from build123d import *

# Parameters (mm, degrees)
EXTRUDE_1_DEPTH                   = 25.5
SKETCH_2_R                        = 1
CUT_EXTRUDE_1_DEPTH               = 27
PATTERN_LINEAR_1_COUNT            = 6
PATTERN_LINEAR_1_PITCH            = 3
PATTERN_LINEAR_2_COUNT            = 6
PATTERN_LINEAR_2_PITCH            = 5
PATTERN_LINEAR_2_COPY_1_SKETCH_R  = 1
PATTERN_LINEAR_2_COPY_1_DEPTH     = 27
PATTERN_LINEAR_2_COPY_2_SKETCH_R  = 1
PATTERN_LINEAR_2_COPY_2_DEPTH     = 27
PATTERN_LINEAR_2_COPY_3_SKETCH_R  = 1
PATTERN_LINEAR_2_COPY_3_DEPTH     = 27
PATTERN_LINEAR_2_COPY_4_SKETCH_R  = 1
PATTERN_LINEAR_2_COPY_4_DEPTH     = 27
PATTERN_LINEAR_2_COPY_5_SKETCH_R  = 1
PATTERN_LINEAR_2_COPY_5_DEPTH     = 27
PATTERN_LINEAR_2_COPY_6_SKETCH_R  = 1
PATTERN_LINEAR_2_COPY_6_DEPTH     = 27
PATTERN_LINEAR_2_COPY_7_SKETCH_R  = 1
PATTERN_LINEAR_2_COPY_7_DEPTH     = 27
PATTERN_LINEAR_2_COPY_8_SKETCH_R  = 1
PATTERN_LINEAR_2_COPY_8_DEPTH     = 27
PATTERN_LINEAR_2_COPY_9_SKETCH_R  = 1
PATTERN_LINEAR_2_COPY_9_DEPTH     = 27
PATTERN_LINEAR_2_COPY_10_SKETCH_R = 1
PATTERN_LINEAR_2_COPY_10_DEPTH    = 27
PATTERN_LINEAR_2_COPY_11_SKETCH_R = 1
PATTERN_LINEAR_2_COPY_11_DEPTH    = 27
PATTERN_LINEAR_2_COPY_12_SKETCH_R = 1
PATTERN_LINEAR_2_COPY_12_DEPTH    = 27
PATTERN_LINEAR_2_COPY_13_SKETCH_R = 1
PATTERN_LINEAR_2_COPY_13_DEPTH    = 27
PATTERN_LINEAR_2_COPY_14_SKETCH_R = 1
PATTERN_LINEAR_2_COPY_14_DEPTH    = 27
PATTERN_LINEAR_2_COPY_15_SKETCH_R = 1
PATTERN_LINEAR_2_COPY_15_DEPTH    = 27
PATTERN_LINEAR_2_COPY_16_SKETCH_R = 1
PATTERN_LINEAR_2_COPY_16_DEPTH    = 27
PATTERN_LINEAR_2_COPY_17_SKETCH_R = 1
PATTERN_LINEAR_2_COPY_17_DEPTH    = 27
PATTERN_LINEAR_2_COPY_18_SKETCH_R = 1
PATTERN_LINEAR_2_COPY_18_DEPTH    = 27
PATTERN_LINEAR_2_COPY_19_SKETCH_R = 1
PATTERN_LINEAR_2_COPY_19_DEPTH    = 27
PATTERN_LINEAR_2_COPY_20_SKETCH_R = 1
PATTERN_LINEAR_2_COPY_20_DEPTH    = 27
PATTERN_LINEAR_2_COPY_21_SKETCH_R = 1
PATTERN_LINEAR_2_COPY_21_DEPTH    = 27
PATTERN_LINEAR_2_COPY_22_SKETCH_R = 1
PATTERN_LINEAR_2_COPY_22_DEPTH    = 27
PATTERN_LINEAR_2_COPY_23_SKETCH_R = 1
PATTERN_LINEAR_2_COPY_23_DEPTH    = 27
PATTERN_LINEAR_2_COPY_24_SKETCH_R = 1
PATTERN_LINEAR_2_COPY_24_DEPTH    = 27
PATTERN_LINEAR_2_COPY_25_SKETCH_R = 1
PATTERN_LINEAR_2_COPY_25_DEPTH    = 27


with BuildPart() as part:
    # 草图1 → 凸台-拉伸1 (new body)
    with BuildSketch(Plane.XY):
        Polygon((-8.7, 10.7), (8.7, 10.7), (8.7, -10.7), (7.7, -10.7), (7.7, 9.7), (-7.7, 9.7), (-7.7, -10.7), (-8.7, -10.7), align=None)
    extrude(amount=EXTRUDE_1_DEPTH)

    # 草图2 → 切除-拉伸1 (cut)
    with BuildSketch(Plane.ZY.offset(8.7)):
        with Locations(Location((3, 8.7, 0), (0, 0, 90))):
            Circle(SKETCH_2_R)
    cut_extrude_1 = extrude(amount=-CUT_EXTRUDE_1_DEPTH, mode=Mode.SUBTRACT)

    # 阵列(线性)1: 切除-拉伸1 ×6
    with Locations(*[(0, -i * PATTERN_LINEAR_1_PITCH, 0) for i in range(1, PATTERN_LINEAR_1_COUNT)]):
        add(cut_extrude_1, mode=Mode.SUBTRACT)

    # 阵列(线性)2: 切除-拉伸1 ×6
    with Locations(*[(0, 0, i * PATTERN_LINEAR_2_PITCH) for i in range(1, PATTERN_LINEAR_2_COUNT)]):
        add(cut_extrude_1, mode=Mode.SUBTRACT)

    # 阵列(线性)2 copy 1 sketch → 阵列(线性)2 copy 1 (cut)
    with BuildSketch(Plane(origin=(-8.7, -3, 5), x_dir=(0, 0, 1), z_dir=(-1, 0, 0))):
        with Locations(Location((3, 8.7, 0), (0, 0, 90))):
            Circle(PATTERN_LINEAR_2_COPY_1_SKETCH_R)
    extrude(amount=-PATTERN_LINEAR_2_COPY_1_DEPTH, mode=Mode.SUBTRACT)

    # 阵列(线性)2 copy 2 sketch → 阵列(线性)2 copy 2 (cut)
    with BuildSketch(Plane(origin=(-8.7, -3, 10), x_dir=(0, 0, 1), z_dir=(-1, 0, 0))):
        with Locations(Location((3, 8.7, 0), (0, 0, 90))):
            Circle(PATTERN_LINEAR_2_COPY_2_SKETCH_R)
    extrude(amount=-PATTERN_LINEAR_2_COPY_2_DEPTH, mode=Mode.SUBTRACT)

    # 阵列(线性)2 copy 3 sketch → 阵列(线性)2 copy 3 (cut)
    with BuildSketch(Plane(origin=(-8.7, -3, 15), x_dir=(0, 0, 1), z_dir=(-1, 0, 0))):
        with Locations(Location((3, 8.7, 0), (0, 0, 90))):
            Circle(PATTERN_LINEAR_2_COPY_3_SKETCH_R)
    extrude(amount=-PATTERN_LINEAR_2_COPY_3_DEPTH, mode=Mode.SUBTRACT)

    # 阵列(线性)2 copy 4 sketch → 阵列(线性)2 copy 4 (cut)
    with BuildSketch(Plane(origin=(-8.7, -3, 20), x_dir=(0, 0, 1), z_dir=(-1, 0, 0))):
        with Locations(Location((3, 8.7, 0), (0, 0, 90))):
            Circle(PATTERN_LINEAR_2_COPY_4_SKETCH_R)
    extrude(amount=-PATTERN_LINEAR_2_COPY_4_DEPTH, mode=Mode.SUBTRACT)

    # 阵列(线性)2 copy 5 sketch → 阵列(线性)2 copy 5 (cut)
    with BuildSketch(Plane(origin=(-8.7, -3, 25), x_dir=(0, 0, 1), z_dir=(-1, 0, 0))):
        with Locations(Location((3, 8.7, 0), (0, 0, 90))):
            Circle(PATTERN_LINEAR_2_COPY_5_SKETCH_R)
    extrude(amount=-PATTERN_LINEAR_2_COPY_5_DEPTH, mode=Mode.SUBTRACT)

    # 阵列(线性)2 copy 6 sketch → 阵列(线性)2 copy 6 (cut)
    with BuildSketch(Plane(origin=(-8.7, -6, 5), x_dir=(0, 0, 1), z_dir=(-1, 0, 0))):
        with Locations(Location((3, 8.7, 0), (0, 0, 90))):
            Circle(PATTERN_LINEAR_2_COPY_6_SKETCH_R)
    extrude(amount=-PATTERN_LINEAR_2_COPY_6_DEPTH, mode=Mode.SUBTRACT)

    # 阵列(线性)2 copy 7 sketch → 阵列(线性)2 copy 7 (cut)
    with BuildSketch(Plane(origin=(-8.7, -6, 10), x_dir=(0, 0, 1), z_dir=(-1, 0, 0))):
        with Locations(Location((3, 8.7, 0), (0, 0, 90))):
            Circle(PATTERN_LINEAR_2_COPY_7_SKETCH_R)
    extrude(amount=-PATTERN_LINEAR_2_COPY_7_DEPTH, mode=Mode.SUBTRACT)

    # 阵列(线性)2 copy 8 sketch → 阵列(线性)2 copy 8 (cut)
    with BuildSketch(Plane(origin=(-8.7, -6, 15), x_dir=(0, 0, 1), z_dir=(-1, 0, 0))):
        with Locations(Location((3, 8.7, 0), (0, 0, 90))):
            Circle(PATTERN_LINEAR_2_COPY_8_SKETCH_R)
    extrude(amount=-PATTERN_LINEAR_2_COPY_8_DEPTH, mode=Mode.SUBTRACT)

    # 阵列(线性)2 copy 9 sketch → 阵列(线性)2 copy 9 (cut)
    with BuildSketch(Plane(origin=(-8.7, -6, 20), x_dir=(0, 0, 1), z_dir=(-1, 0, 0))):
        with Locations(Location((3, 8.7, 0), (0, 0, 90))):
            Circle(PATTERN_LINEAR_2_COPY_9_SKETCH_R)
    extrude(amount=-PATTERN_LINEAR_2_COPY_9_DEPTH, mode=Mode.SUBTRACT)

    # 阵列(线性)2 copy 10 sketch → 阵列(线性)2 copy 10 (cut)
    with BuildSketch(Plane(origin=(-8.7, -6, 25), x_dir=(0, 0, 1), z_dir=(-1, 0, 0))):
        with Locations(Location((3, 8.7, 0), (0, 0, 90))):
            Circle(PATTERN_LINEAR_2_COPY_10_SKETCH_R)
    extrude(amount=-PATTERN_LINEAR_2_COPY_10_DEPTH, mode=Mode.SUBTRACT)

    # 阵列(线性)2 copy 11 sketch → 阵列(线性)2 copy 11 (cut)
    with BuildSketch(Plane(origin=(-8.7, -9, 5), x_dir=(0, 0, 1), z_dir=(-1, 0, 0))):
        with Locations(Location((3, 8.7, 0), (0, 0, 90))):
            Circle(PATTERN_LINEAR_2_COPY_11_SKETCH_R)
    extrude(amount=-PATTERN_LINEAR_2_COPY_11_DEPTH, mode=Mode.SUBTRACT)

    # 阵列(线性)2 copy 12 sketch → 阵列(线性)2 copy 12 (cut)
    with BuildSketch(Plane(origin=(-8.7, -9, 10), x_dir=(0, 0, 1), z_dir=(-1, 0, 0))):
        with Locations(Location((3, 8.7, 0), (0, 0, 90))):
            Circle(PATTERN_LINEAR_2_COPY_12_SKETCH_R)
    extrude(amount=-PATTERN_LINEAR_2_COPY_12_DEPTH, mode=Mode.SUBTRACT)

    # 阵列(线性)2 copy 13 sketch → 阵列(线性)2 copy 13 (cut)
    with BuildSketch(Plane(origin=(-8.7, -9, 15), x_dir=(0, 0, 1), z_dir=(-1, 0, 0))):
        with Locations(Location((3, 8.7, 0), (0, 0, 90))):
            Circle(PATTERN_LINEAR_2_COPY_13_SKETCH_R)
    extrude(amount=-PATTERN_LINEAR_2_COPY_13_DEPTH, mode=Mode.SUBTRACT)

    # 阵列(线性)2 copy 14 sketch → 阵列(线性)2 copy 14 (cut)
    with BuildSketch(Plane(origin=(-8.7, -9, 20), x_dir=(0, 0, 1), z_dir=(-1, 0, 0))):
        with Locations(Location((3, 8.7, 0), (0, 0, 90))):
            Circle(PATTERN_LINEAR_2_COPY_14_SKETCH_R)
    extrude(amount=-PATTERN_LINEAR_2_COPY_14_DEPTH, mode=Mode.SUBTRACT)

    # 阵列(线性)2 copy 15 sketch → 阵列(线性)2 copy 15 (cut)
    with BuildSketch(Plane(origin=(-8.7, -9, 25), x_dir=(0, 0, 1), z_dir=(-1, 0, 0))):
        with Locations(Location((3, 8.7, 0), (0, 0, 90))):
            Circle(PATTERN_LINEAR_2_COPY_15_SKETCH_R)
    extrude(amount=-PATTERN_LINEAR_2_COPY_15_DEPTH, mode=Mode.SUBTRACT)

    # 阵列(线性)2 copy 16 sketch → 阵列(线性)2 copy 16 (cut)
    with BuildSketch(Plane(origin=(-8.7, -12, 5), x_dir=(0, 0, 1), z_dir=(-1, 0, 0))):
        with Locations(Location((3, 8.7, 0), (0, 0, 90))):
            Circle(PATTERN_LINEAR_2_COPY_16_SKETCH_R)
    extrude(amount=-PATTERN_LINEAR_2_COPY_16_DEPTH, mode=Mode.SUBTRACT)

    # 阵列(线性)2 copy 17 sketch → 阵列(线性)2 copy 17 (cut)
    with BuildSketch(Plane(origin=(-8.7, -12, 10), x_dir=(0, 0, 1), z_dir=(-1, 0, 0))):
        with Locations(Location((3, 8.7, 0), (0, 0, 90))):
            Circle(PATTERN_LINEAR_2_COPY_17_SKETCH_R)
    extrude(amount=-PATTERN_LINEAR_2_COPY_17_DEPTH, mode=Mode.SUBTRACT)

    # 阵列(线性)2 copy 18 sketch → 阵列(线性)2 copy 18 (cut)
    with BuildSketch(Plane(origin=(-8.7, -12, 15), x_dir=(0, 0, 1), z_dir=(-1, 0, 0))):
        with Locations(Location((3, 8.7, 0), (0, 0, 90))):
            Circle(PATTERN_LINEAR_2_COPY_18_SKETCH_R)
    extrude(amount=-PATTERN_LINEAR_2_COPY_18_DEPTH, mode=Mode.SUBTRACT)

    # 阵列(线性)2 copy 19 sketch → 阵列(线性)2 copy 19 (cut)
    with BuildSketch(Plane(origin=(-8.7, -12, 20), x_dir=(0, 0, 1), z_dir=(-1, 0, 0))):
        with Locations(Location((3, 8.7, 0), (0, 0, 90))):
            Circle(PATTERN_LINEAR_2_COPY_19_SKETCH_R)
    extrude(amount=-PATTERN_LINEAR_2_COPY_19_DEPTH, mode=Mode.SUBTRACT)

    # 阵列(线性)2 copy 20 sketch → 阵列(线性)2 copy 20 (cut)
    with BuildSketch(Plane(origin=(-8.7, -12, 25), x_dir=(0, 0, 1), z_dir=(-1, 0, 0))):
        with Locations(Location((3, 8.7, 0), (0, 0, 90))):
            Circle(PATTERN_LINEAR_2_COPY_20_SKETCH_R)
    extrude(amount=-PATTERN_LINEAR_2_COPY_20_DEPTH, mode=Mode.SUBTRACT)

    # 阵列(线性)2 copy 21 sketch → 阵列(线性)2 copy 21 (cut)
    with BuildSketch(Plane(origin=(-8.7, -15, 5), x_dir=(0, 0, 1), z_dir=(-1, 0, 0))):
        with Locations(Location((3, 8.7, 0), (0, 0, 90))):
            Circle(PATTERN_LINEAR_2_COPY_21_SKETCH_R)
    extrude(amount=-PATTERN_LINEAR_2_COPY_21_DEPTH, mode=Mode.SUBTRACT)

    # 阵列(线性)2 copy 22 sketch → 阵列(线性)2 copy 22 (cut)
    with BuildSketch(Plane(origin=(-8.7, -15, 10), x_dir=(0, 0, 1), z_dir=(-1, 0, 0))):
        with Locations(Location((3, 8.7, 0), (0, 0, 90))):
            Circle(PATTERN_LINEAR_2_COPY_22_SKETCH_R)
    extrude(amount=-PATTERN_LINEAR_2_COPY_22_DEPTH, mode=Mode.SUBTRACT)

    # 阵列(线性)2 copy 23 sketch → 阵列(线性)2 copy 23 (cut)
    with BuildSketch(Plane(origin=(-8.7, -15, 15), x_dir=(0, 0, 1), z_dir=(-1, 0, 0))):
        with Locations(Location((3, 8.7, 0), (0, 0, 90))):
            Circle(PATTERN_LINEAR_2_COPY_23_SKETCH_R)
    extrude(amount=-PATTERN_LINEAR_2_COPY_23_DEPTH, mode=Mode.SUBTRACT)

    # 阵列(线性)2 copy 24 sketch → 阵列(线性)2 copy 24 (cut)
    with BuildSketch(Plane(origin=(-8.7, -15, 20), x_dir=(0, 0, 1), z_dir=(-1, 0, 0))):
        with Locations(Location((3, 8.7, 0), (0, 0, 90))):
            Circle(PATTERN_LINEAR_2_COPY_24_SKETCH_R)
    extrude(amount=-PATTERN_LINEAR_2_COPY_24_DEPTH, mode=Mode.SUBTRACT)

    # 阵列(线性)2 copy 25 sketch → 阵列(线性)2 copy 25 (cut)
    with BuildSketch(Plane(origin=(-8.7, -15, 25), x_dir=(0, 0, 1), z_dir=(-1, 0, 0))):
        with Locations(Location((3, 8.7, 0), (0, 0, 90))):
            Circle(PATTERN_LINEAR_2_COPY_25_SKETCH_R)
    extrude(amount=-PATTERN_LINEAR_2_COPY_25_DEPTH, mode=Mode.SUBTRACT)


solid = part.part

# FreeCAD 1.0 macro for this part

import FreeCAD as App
import Part
import Sketcher
Q = App.Units.Quantity

doc = App.newDocument("Part")
body = doc.addObject("PartDesign::Body", "Body")

# Sketch on XY plane
sketch1 = doc.addObject("Sketcher::SketchObject", "Sketch")
body.addObject(sketch1)
sketch1.AttachmentSupport = (doc.XY_Plane, [""])
sketch1.MapMode = "FlatFace"
sketch1.addGeometry([
    Part.LineSegment(App.Vector(8.7, 10.7, 0), App.Vector(-8.7, 10.7, 0)),  # 0
    Part.LineSegment(App.Vector(-8.7, 10.7, 0), App.Vector(-8.7, -10.7, 0)),  # 1
    Part.LineSegment(App.Vector(-8.7, -10.7, 0), App.Vector(-7.7, -10.7, 0)),  # 2
    Part.LineSegment(App.Vector(-7.7, -10.7, 0), App.Vector(-7.7, 9.7, 0)),  # 3
    Part.LineSegment(App.Vector(-7.7, 9.7, 0), App.Vector(7.7, 9.7, 0)),  # 4
    Part.LineSegment(App.Vector(7.7, 9.7, 0), App.Vector(7.7, -10.7, 0)),  # 5
    Part.LineSegment(App.Vector(7.7, -10.7, 0), App.Vector(8.7, -10.7, 0)),  # 6
    Part.LineSegment(App.Vector(8.7, -10.7, 0), App.Vector(8.7, 10.7, 0)),  # 7
], False)
sketch1.addConstraint([
    Sketcher.Constraint("Coincident", 0, 2, 1, 1),
    Sketcher.Constraint("Coincident", 1, 2, 2, 1),
    Sketcher.Constraint("Coincident", 2, 2, 3, 1),
    Sketcher.Constraint("Coincident", 3, 2, 4, 1),
    Sketcher.Constraint("Coincident", 4, 2, 5, 1),
    Sketcher.Constraint("Coincident", 5, 2, 6, 1),
    Sketcher.Constraint("Coincident", 6, 2, 7, 1),
    Sketcher.Constraint("Coincident", 7, 2, 0, 1),
    Sketcher.Constraint("Horizontal", 0),
    Sketcher.Constraint("Vertical", 1),
    Sketcher.Constraint("Horizontal", 2),
    Sketcher.Constraint("Vertical", 3),
    Sketcher.Constraint("Horizontal", 4),
    Sketcher.Constraint("Vertical", 5),
    Sketcher.Constraint("Horizontal", 6),
    Sketcher.Constraint("Vertical", 7),
    Sketcher.Constraint("Symmetric", 0, 2, 6, 2, -1, 1),
    Sketcher.Constraint("Symmetric", 2, 2, 5, 2, -2),
    Sketcher.Constraint("DistanceX", 2, 1, 2, 2, Q("1 mm")),
    Sketcher.Constraint("DistanceX", 0, 2, 0, 1, Q("17.4 mm")),
    Sketcher.Constraint("DistanceY", 1, 2, 1, 1, Q("21.4 mm")),
    Sketcher.Constraint("DistanceY", 3, 1, 3, 2, Q("20.4 mm")),
])
pad1 = doc.addObject("PartDesign::Pad", "Pad")
body.addObject(pad1)
pad1.Profile = sketch1
pad1.Length = 25.5

# Sketch on YZ plane
sketch2 = doc.addObject("Sketcher::SketchObject", "Sketch001")
body.addObject(sketch2)
sketch2.AttachmentSupport = (doc.YZ_Plane, [""])
sketch2.MapMode = "FlatFace"
sketch2.AttachmentOffset = App.Placement(App.Vector(0, 0, -8.7), App.Rotation())
sketch2.addGeometry(Part.Circle(App.Vector(8.7, 3, 0), App.Vector(0, 0, 1), 1), False)
sketch2.addConstraint([
    Sketcher.Constraint("Diameter", 0, Q("2 mm")),
    Sketcher.Constraint("DistanceY", -1, 1, 0, 3, Q("3 mm")),
    Sketcher.Constraint("DistanceX", -1, 1, 0, 3, Q("8.7 mm")),
])
pocket1 = doc.addObject("PartDesign::Pocket", "Pocket")
body.addObject(pocket1)
pocket1.Profile = sketch2
pocket1.Length = 27
pocket1.Reversed = True
doc.recompute()

linearpattern = doc.addObject("PartDesign::LinearPattern", "LinearPattern")
body.addObject(linearpattern)
linearpattern.Originals = [pocket1]
linearpattern.Direction = (doc.Y_Axis, [""])
linearpattern.Mode = "offset"
linearpattern.Offset = 3
linearpattern.Occurrences = 6
linearpattern.Reversed = True
body.Tip = linearpattern
doc.recompute()

linearpattern2 = doc.addObject("PartDesign::LinearPattern", "LinearPattern001")
body.addObject(linearpattern2)
linearpattern2.Originals = [pocket1]
linearpattern2.Direction = (doc.Z_Axis, [""])
linearpattern2.Mode = "offset"
linearpattern2.Offset = 5
linearpattern2.Occurrences = 6
body.Tip = linearpattern2

# Sketch on YZ plane
sketch3 = doc.addObject("Sketcher::SketchObject", "Sketch002")
body.addObject(sketch3)
sketch3.AttachmentSupport = (doc.YZ_Plane, [""])
sketch3.MapMode = "FlatFace"
sketch3.AttachmentOffset = App.Placement(App.Vector(0, 0, -8.7), App.Rotation())
sketch3.addGeometry(Part.Circle(App.Vector(5.7, 8, 0), App.Vector(0, 0, 1), 1), False)
sketch3.addConstraint([
    Sketcher.Constraint("Diameter", 0, Q("2 mm")),
    Sketcher.Constraint("DistanceY", -1, 1, 0, 3, Q("8 mm")),
    Sketcher.Constraint("DistanceX", -1, 1, 0, 3, Q("5.7 mm")),
])
pocket2 = doc.addObject("PartDesign::Pocket", "Pocket001")
body.addObject(pocket2)
pocket2.Profile = sketch3
pocket2.Length = 27
pocket2.Reversed = True

# Sketch on YZ plane
sketch4 = doc.addObject("Sketcher::SketchObject", "Sketch003")
body.addObject(sketch4)
sketch4.AttachmentSupport = (doc.YZ_Plane, [""])
sketch4.MapMode = "FlatFace"
sketch4.AttachmentOffset = App.Placement(App.Vector(0, 0, -8.7), App.Rotation())
sketch4.addGeometry(Part.Circle(App.Vector(5.7, 13, 0), App.Vector(0, 0, 1), 1), False)
sketch4.addConstraint([
    Sketcher.Constraint("Diameter", 0, Q("2 mm")),
    Sketcher.Constraint("DistanceY", -1, 1, 0, 3, Q("13 mm")),
    Sketcher.Constraint("DistanceX", -1, 1, 0, 3, Q("5.7 mm")),
])
pocket3 = doc.addObject("PartDesign::Pocket", "Pocket002")
body.addObject(pocket3)
pocket3.Profile = sketch4
pocket3.Length = 27
pocket3.Reversed = True

# Sketch on YZ plane
sketch5 = doc.addObject("Sketcher::SketchObject", "Sketch004")
body.addObject(sketch5)
sketch5.AttachmentSupport = (doc.YZ_Plane, [""])
sketch5.MapMode = "FlatFace"
sketch5.AttachmentOffset = App.Placement(App.Vector(0, 0, -8.7), App.Rotation())
sketch5.addGeometry(Part.Circle(App.Vector(5.7, 18, 0), App.Vector(0, 0, 1), 1), False)
sketch5.addConstraint([
    Sketcher.Constraint("Diameter", 0, Q("2 mm")),
    Sketcher.Constraint("DistanceY", -1, 1, 0, 3, Q("18 mm")),
    Sketcher.Constraint("DistanceX", -1, 1, 0, 3, Q("5.7 mm")),
])
pocket4 = doc.addObject("PartDesign::Pocket", "Pocket003")
body.addObject(pocket4)
pocket4.Profile = sketch5
pocket4.Length = 27
pocket4.Reversed = True

# Sketch on YZ plane
sketch6 = doc.addObject("Sketcher::SketchObject", "Sketch005")
body.addObject(sketch6)
sketch6.AttachmentSupport = (doc.YZ_Plane, [""])
sketch6.MapMode = "FlatFace"
sketch6.AttachmentOffset = App.Placement(App.Vector(0, 0, -8.7), App.Rotation())
sketch6.addGeometry(Part.Circle(App.Vector(5.7, 23, 0), App.Vector(0, 0, 1), 1), False)
sketch6.addConstraint([
    Sketcher.Constraint("Diameter", 0, Q("2 mm")),
    Sketcher.Constraint("DistanceY", -1, 1, 0, 3, Q("23 mm")),
    Sketcher.Constraint("DistanceX", -1, 1, 0, 3, Q("5.7 mm")),
])
pocket5 = doc.addObject("PartDesign::Pocket", "Pocket004")
body.addObject(pocket5)
pocket5.Profile = sketch6
pocket5.Length = 27
pocket5.Reversed = True

# Sketch on YZ plane
sketch7 = doc.addObject("Sketcher::SketchObject", "Sketch006")
body.addObject(sketch7)
sketch7.AttachmentSupport = (doc.YZ_Plane, [""])
sketch7.MapMode = "FlatFace"
sketch7.AttachmentOffset = App.Placement(App.Vector(0, 0, -8.7), App.Rotation())
sketch7.addGeometry(Part.Circle(App.Vector(5.7, 28, 0), App.Vector(0, 0, 1), 1), False)
sketch7.addConstraint([
    Sketcher.Constraint("Diameter", 0, Q("2 mm")),
    Sketcher.Constraint("DistanceY", -1, 1, 0, 3, Q("28 mm")),
    Sketcher.Constraint("DistanceX", -1, 1, 0, 3, Q("5.7 mm")),
])
pocket6 = doc.addObject("PartDesign::Pocket", "Pocket005")
body.addObject(pocket6)
pocket6.Profile = sketch7
pocket6.Length = 27
pocket6.Reversed = True

# Sketch on YZ plane
sketch8 = doc.addObject("Sketcher::SketchObject", "Sketch007")
body.addObject(sketch8)
sketch8.AttachmentSupport = (doc.YZ_Plane, [""])
sketch8.MapMode = "FlatFace"
sketch8.AttachmentOffset = App.Placement(App.Vector(0, 0, -8.7), App.Rotation())
sketch8.addGeometry(Part.Circle(App.Vector(2.7, 8, 0), App.Vector(0, 0, 1), 1), False)
sketch8.addConstraint([
    Sketcher.Constraint("Diameter", 0, Q("2 mm")),
    Sketcher.Constraint("DistanceY", -1, 1, 0, 3, Q("8 mm")),
    Sketcher.Constraint("DistanceX", -1, 1, 0, 3, Q("2.7 mm")),
])
pocket7 = doc.addObject("PartDesign::Pocket", "Pocket006")
body.addObject(pocket7)
pocket7.Profile = sketch8
pocket7.Length = 27
pocket7.Reversed = True

# Sketch on YZ plane
sketch9 = doc.addObject("Sketcher::SketchObject", "Sketch008")
body.addObject(sketch9)
sketch9.AttachmentSupport = (doc.YZ_Plane, [""])
sketch9.MapMode = "FlatFace"
sketch9.AttachmentOffset = App.Placement(App.Vector(0, 0, -8.7), App.Rotation())
sketch9.addGeometry(Part.Circle(App.Vector(2.7, 13, 0), App.Vector(0, 0, 1), 1), False)
sketch9.addConstraint([
    Sketcher.Constraint("Diameter", 0, Q("2 mm")),
    Sketcher.Constraint("DistanceY", -1, 1, 0, 3, Q("13 mm")),
    Sketcher.Constraint("DistanceX", -1, 1, 0, 3, Q("2.7 mm")),
])
pocket8 = doc.addObject("PartDesign::Pocket", "Pocket007")
body.addObject(pocket8)
pocket8.Profile = sketch9
pocket8.Length = 27
pocket8.Reversed = True

# Sketch on YZ plane
sketch10 = doc.addObject("Sketcher::SketchObject", "Sketch009")
body.addObject(sketch10)
sketch10.AttachmentSupport = (doc.YZ_Plane, [""])
sketch10.MapMode = "FlatFace"
sketch10.AttachmentOffset = App.Placement(App.Vector(0, 0, -8.7), App.Rotation())
sketch10.addGeometry(Part.Circle(App.Vector(2.7, 18, 0), App.Vector(0, 0, 1), 1), False)
sketch10.addConstraint([
    Sketcher.Constraint("Diameter", 0, Q("2 mm")),
    Sketcher.Constraint("DistanceY", -1, 1, 0, 3, Q("18 mm")),
    Sketcher.Constraint("DistanceX", -1, 1, 0, 3, Q("2.7 mm")),
])
pocket9 = doc.addObject("PartDesign::Pocket", "Pocket008")
body.addObject(pocket9)
pocket9.Profile = sketch10
pocket9.Length = 27
pocket9.Reversed = True

# Sketch on YZ plane
sketch11 = doc.addObject("Sketcher::SketchObject", "Sketch010")
body.addObject(sketch11)
sketch11.AttachmentSupport = (doc.YZ_Plane, [""])
sketch11.MapMode = "FlatFace"
sketch11.AttachmentOffset = App.Placement(App.Vector(0, 0, -8.7), App.Rotation())
sketch11.addGeometry(Part.Circle(App.Vector(2.7, 23, 0), App.Vector(0, 0, 1), 1), False)
sketch11.addConstraint([
    Sketcher.Constraint("Diameter", 0, Q("2 mm")),
    Sketcher.Constraint("DistanceY", -1, 1, 0, 3, Q("23 mm")),
    Sketcher.Constraint("DistanceX", -1, 1, 0, 3, Q("2.7 mm")),
])
pocket10 = doc.addObject("PartDesign::Pocket", "Pocket009")
body.addObject(pocket10)
pocket10.Profile = sketch11
pocket10.Length = 27
pocket10.Reversed = True

# Sketch on YZ plane
sketch12 = doc.addObject("Sketcher::SketchObject", "Sketch011")
body.addObject(sketch12)
sketch12.AttachmentSupport = (doc.YZ_Plane, [""])
sketch12.MapMode = "FlatFace"
sketch12.AttachmentOffset = App.Placement(App.Vector(0, 0, -8.7), App.Rotation())
sketch12.addGeometry(Part.Circle(App.Vector(2.7, 28, 0), App.Vector(0, 0, 1), 1), False)
sketch12.addConstraint([
    Sketcher.Constraint("Diameter", 0, Q("2 mm")),
    Sketcher.Constraint("DistanceY", -1, 1, 0, 3, Q("28 mm")),
    Sketcher.Constraint("DistanceX", -1, 1, 0, 3, Q("2.7 mm")),
])
pocket11 = doc.addObject("PartDesign::Pocket", "Pocket010")
body.addObject(pocket11)
pocket11.Profile = sketch12
pocket11.Length = 27
pocket11.Reversed = True

# Sketch on YZ plane
sketch13 = doc.addObject("Sketcher::SketchObject", "Sketch012")
body.addObject(sketch13)
sketch13.AttachmentSupport = (doc.YZ_Plane, [""])
sketch13.MapMode = "FlatFace"
sketch13.AttachmentOffset = App.Placement(App.Vector(0, 0, -8.7), App.Rotation())
sketch13.addGeometry(Part.Circle(App.Vector(-0.3, 8, 0), App.Vector(0, 0, 1), 1), False)
sketch13.addConstraint([
    Sketcher.Constraint("Diameter", 0, Q("2 mm")),
    Sketcher.Constraint("DistanceY", -1, 1, 0, 3, Q("8 mm")),
    Sketcher.Constraint("DistanceX", 0, 3, -1, 1, Q("0.3 mm")),
])
pocket12 = doc.addObject("PartDesign::Pocket", "Pocket011")
body.addObject(pocket12)
pocket12.Profile = sketch13
pocket12.Length = 27
pocket12.Reversed = True

# Sketch on YZ plane
sketch14 = doc.addObject("Sketcher::SketchObject", "Sketch013")
body.addObject(sketch14)
sketch14.AttachmentSupport = (doc.YZ_Plane, [""])
sketch14.MapMode = "FlatFace"
sketch14.AttachmentOffset = App.Placement(App.Vector(0, 0, -8.7), App.Rotation())
sketch14.addGeometry(Part.Circle(App.Vector(-0.3, 13, 0), App.Vector(0, 0, 1), 1), False)
sketch14.addConstraint([
    Sketcher.Constraint("Diameter", 0, Q("2 mm")),
    Sketcher.Constraint("DistanceY", -1, 1, 0, 3, Q("13 mm")),
    Sketcher.Constraint("DistanceX", 0, 3, -1, 1, Q("0.3 mm")),
])
pocket13 = doc.addObject("PartDesign::Pocket", "Pocket012")
body.addObject(pocket13)
pocket13.Profile = sketch14
pocket13.Length = 27
pocket13.Reversed = True

# Sketch on YZ plane
sketch15 = doc.addObject("Sketcher::SketchObject", "Sketch014")
body.addObject(sketch15)
sketch15.AttachmentSupport = (doc.YZ_Plane, [""])
sketch15.MapMode = "FlatFace"
sketch15.AttachmentOffset = App.Placement(App.Vector(0, 0, -8.7), App.Rotation())
sketch15.addGeometry(Part.Circle(App.Vector(-0.3, 18, 0), App.Vector(0, 0, 1), 1), False)
sketch15.addConstraint([
    Sketcher.Constraint("Diameter", 0, Q("2 mm")),
    Sketcher.Constraint("DistanceY", -1, 1, 0, 3, Q("18 mm")),
    Sketcher.Constraint("DistanceX", 0, 3, -1, 1, Q("0.3 mm")),
])
pocket14 = doc.addObject("PartDesign::Pocket", "Pocket013")
body.addObject(pocket14)
pocket14.Profile = sketch15
pocket14.Length = 27
pocket14.Reversed = True

# Sketch on YZ plane
sketch16 = doc.addObject("Sketcher::SketchObject", "Sketch015")
body.addObject(sketch16)
sketch16.AttachmentSupport = (doc.YZ_Plane, [""])
sketch16.MapMode = "FlatFace"
sketch16.AttachmentOffset = App.Placement(App.Vector(0, 0, -8.7), App.Rotation())
sketch16.addGeometry(Part.Circle(App.Vector(-0.3, 23, 0), App.Vector(0, 0, 1), 1), False)
sketch16.addConstraint([
    Sketcher.Constraint("Diameter", 0, Q("2 mm")),
    Sketcher.Constraint("DistanceY", -1, 1, 0, 3, Q("23 mm")),
    Sketcher.Constraint("DistanceX", 0, 3, -1, 1, Q("0.3 mm")),
])
pocket15 = doc.addObject("PartDesign::Pocket", "Pocket014")
body.addObject(pocket15)
pocket15.Profile = sketch16
pocket15.Length = 27
pocket15.Reversed = True

# Sketch on YZ plane
sketch17 = doc.addObject("Sketcher::SketchObject", "Sketch016")
body.addObject(sketch17)
sketch17.AttachmentSupport = (doc.YZ_Plane, [""])
sketch17.MapMode = "FlatFace"
sketch17.AttachmentOffset = App.Placement(App.Vector(0, 0, -8.7), App.Rotation())
sketch17.addGeometry(Part.Circle(App.Vector(-0.3, 28, 0), App.Vector(0, 0, 1), 1), False)
sketch17.addConstraint([
    Sketcher.Constraint("Diameter", 0, Q("2 mm")),
    Sketcher.Constraint("DistanceY", -1, 1, 0, 3, Q("28 mm")),
    Sketcher.Constraint("DistanceX", 0, 3, -1, 1, Q("0.3 mm")),
])
pocket16 = doc.addObject("PartDesign::Pocket", "Pocket015")
body.addObject(pocket16)
pocket16.Profile = sketch17
pocket16.Length = 27
pocket16.Reversed = True

# Sketch on YZ plane
sketch18 = doc.addObject("Sketcher::SketchObject", "Sketch017")
body.addObject(sketch18)
sketch18.AttachmentSupport = (doc.YZ_Plane, [""])
sketch18.MapMode = "FlatFace"
sketch18.AttachmentOffset = App.Placement(App.Vector(0, 0, -8.7), App.Rotation())
sketch18.addGeometry(Part.Circle(App.Vector(-3.3, 8, 0), App.Vector(0, 0, 1), 1), False)
sketch18.addConstraint([
    Sketcher.Constraint("Diameter", 0, Q("2 mm")),
    Sketcher.Constraint("DistanceY", -1, 1, 0, 3, Q("8 mm")),
    Sketcher.Constraint("DistanceX", 0, 3, -1, 1, Q("3.3 mm")),
])
pocket17 = doc.addObject("PartDesign::Pocket", "Pocket016")
body.addObject(pocket17)
pocket17.Profile = sketch18
pocket17.Length = 27
pocket17.Reversed = True

# Sketch on YZ plane
sketch19 = doc.addObject("Sketcher::SketchObject", "Sketch018")
body.addObject(sketch19)
sketch19.AttachmentSupport = (doc.YZ_Plane, [""])
sketch19.MapMode = "FlatFace"
sketch19.AttachmentOffset = App.Placement(App.Vector(0, 0, -8.7), App.Rotation())
sketch19.addGeometry(Part.Circle(App.Vector(-3.3, 13, 0), App.Vector(0, 0, 1), 1), False)
sketch19.addConstraint([
    Sketcher.Constraint("Diameter", 0, Q("2 mm")),
    Sketcher.Constraint("DistanceY", -1, 1, 0, 3, Q("13 mm")),
    Sketcher.Constraint("DistanceX", 0, 3, -1, 1, Q("3.3 mm")),
])
pocket18 = doc.addObject("PartDesign::Pocket", "Pocket017")
body.addObject(pocket18)
pocket18.Profile = sketch19
pocket18.Length = 27
pocket18.Reversed = True

# Sketch on YZ plane
sketch20 = doc.addObject("Sketcher::SketchObject", "Sketch019")
body.addObject(sketch20)
sketch20.AttachmentSupport = (doc.YZ_Plane, [""])
sketch20.MapMode = "FlatFace"
sketch20.AttachmentOffset = App.Placement(App.Vector(0, 0, -8.7), App.Rotation())
sketch20.addGeometry(Part.Circle(App.Vector(-3.3, 18, 0), App.Vector(0, 0, 1), 1), False)
sketch20.addConstraint([
    Sketcher.Constraint("Diameter", 0, Q("2 mm")),
    Sketcher.Constraint("DistanceY", -1, 1, 0, 3, Q("18 mm")),
    Sketcher.Constraint("DistanceX", 0, 3, -1, 1, Q("3.3 mm")),
])
pocket19 = doc.addObject("PartDesign::Pocket", "Pocket018")
body.addObject(pocket19)
pocket19.Profile = sketch20
pocket19.Length = 27
pocket19.Reversed = True

# Sketch on YZ plane
sketch21 = doc.addObject("Sketcher::SketchObject", "Sketch020")
body.addObject(sketch21)
sketch21.AttachmentSupport = (doc.YZ_Plane, [""])
sketch21.MapMode = "FlatFace"
sketch21.AttachmentOffset = App.Placement(App.Vector(0, 0, -8.7), App.Rotation())
sketch21.addGeometry(Part.Circle(App.Vector(-3.3, 23, 0), App.Vector(0, 0, 1), 1), False)
sketch21.addConstraint([
    Sketcher.Constraint("Diameter", 0, Q("2 mm")),
    Sketcher.Constraint("DistanceY", -1, 1, 0, 3, Q("23 mm")),
    Sketcher.Constraint("DistanceX", 0, 3, -1, 1, Q("3.3 mm")),
])
pocket20 = doc.addObject("PartDesign::Pocket", "Pocket019")
body.addObject(pocket20)
pocket20.Profile = sketch21
pocket20.Length = 27
pocket20.Reversed = True

# Sketch on YZ plane
sketch22 = doc.addObject("Sketcher::SketchObject", "Sketch021")
body.addObject(sketch22)
sketch22.AttachmentSupport = (doc.YZ_Plane, [""])
sketch22.MapMode = "FlatFace"
sketch22.AttachmentOffset = App.Placement(App.Vector(0, 0, -8.7), App.Rotation())
sketch22.addGeometry(Part.Circle(App.Vector(-3.3, 28, 0), App.Vector(0, 0, 1), 1), False)
sketch22.addConstraint([
    Sketcher.Constraint("Diameter", 0, Q("2 mm")),
    Sketcher.Constraint("DistanceY", -1, 1, 0, 3, Q("28 mm")),
    Sketcher.Constraint("DistanceX", 0, 3, -1, 1, Q("3.3 mm")),
])
pocket21 = doc.addObject("PartDesign::Pocket", "Pocket020")
body.addObject(pocket21)
pocket21.Profile = sketch22
pocket21.Length = 27
pocket21.Reversed = True

# Sketch on YZ plane
sketch23 = doc.addObject("Sketcher::SketchObject", "Sketch022")
body.addObject(sketch23)
sketch23.AttachmentSupport = (doc.YZ_Plane, [""])
sketch23.MapMode = "FlatFace"
sketch23.AttachmentOffset = App.Placement(App.Vector(0, 0, -8.7), App.Rotation())
sketch23.addGeometry(Part.Circle(App.Vector(-6.3, 8, 0), App.Vector(0, 0, 1), 1), False)
sketch23.addConstraint([
    Sketcher.Constraint("Diameter", 0, Q("2 mm")),
    Sketcher.Constraint("DistanceY", -1, 1, 0, 3, Q("8 mm")),
    Sketcher.Constraint("DistanceX", 0, 3, -1, 1, Q("6.3 mm")),
])
pocket22 = doc.addObject("PartDesign::Pocket", "Pocket021")
body.addObject(pocket22)
pocket22.Profile = sketch23
pocket22.Length = 27
pocket22.Reversed = True

# Sketch on YZ plane
sketch24 = doc.addObject("Sketcher::SketchObject", "Sketch023")
body.addObject(sketch24)
sketch24.AttachmentSupport = (doc.YZ_Plane, [""])
sketch24.MapMode = "FlatFace"
sketch24.AttachmentOffset = App.Placement(App.Vector(0, 0, -8.7), App.Rotation())
sketch24.addGeometry(Part.Circle(App.Vector(-6.3, 13, 0), App.Vector(0, 0, 1), 1), False)
sketch24.addConstraint([
    Sketcher.Constraint("Diameter", 0, Q("2 mm")),
    Sketcher.Constraint("DistanceY", -1, 1, 0, 3, Q("13 mm")),
    Sketcher.Constraint("DistanceX", 0, 3, -1, 1, Q("6.3 mm")),
])
pocket23 = doc.addObject("PartDesign::Pocket", "Pocket022")
body.addObject(pocket23)
pocket23.Profile = sketch24
pocket23.Length = 27
pocket23.Reversed = True

# Sketch on YZ plane
sketch25 = doc.addObject("Sketcher::SketchObject", "Sketch024")
body.addObject(sketch25)
sketch25.AttachmentSupport = (doc.YZ_Plane, [""])
sketch25.MapMode = "FlatFace"
sketch25.AttachmentOffset = App.Placement(App.Vector(0, 0, -8.7), App.Rotation())
sketch25.addGeometry(Part.Circle(App.Vector(-6.3, 18, 0), App.Vector(0, 0, 1), 1), False)
sketch25.addConstraint([
    Sketcher.Constraint("Diameter", 0, Q("2 mm")),
    Sketcher.Constraint("DistanceY", -1, 1, 0, 3, Q("18 mm")),
    Sketcher.Constraint("DistanceX", 0, 3, -1, 1, Q("6.3 mm")),
])
pocket24 = doc.addObject("PartDesign::Pocket", "Pocket023")
body.addObject(pocket24)
pocket24.Profile = sketch25
pocket24.Length = 27
pocket24.Reversed = True

# Sketch on YZ plane
sketch26 = doc.addObject("Sketcher::SketchObject", "Sketch025")
body.addObject(sketch26)
sketch26.AttachmentSupport = (doc.YZ_Plane, [""])
sketch26.MapMode = "FlatFace"
sketch26.AttachmentOffset = App.Placement(App.Vector(0, 0, -8.7), App.Rotation())
sketch26.addGeometry(Part.Circle(App.Vector(-6.3, 23, 0), App.Vector(0, 0, 1), 1), False)
sketch26.addConstraint([
    Sketcher.Constraint("Diameter", 0, Q("2 mm")),
    Sketcher.Constraint("DistanceY", -1, 1, 0, 3, Q("23 mm")),
    Sketcher.Constraint("DistanceX", 0, 3, -1, 1, Q("6.3 mm")),
])
pocket25 = doc.addObject("PartDesign::Pocket", "Pocket024")
body.addObject(pocket25)
pocket25.Profile = sketch26
pocket25.Length = 27
pocket25.Reversed = True

# Sketch on YZ plane
sketch27 = doc.addObject("Sketcher::SketchObject", "Sketch026")
body.addObject(sketch27)
sketch27.AttachmentSupport = (doc.YZ_Plane, [""])
sketch27.MapMode = "FlatFace"
sketch27.AttachmentOffset = App.Placement(App.Vector(0, 0, -8.7), App.Rotation())
sketch27.addGeometry(Part.Circle(App.Vector(-6.3, 28, 0), App.Vector(0, 0, 1), 1), False)
sketch27.addConstraint([
    Sketcher.Constraint("Diameter", 0, Q("2 mm")),
    Sketcher.Constraint("DistanceY", -1, 1, 0, 3, Q("28 mm")),
    Sketcher.Constraint("DistanceX", 0, 3, -1, 1, Q("6.3 mm")),
])
pocket26 = doc.addObject("PartDesign::Pocket", "Pocket025")
body.addObject(pocket26)
pocket26.Profile = sketch27
pocket26.Length = 27
pocket26.Reversed = True

doc.recompute()
